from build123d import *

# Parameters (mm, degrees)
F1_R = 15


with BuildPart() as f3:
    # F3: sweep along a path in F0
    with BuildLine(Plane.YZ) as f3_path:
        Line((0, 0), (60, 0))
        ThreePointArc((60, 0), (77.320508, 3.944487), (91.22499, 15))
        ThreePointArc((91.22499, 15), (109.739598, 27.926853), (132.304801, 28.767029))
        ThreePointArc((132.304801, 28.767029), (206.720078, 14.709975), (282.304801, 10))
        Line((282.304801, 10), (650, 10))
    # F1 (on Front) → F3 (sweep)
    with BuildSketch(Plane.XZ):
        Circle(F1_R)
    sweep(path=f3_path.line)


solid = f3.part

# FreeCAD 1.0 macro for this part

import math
import FreeCAD as App
import Part
import Sketcher
from FreeCAD import Vector

doc = App.newDocument("Part")
params = doc.addObject("Spreadsheet::Sheet", "Params")
for row, (alias, value) in enumerate([
    ("sketch1_diameter", "30 mm"),
    ("sketch2_radius", "39.999998 mm"),
    ("sketch2_width", "60 mm"),
], start=1):
    params.set(f"A{row}", alias)
    params.set(f"B{row}", "=" + value)
    params.setAlias(f"B{row}", alias)

body = doc.addObject("PartDesign::Body", "Body")

# Sketch on XZ plane
sketch1 = doc.addObject("Sketcher::SketchObject", "Sketch")
body.addObject(sketch1)
sketch1.AttachmentSupport = (doc.XZ_Plane, [""])
sketch1.MapMode = "FlatFace"
sketch1.addGeometry(Part.Circle(Vector(0, 0, 0), Vector(0, 0, 1), 15), False)
sketch1.addConstraint(Sketcher.Constraint("Coincident", 0, 3, -1, 1))
sketch1.addConstraint(Sketcher.Constraint("Diameter", 0, 30.0))
sketch1.setExpression("Constraints[1]", "Params.sketch1_diameter")

# Sketch on YZ plane
sketch2 = doc.addObject("Sketcher::SketchObject", "Sketch001")
body.addObject(sketch2)
sketch2.AttachmentSupport = (doc.YZ_Plane, [""])
sketch2.MapMode = "FlatFace"
sketch2.addGeometry(Part.LineSegment(Vector(0, 0, 0), Vector(60, 0, 0)), False)
sketch2.addGeometry(Part.ArcOfCircle(Part.Circle(Vector(60.000001, 39.999998, 0), Vector(0, 0, 1), 39.999998), math.radians(-90.000001), math.radians(-38.682186)), False)
sketch2.addGeometry(Part.ArcOfCircle(Part.Circle(Vector(122.449981, -10.000002, 0), Vector(0, 0, 1), 40.000002), math.radians(75.73716), math.radians(141.317811)), False)
sketch2.addGeometry(Part.ArcOfCircle(Part.Circle(Vector(282.304794, 618.839027, 0), Vector(0, 0, 1), 608.839027), math.radians(-104.262842), math.radians(-89.999999)), False)
sketch2.addGeometry(Part.LineSegment(Vector(282.304801, 10, 0), Vector(650, 10, 0)), False)
sketch2.addConstraint(Sketcher.Constraint("Coincident", 0, 2, 1, 1))
sketch2.addConstraint(Sketcher.Constraint("Coincident", 1, 2, 2, 2))
sketch2.addConstraint(Sketcher.Constraint("Coincident", 2, 1, 3, 1))
sketch2.addConstraint(Sketcher.Constraint("Coincident", 3, 2, 4, 1))
sketch2.addConstraint(Sketcher.Constraint("Horizontal", 0))
sketch2.addConstraint(Sketcher.Constraint("Horizontal", 4))
sketch2.addConstraint(Sketcher.Constraint("Coincident", 0, 1, -1, 1))
sketch2.addConstraint(Sketcher.Constraint("Radius", 1, 39.999998))
sketch2.addConstraint(Sketcher.Constraint("DistanceX", 0, 1, 0, 2, 60.0))
sketch2.addConstraint(Sketcher.Constraint("DistanceX", -1, 1, 1, 3, 60.000001))
sketch2.addConstraint(Sketcher.Constraint("DistanceY", 2, 3, -1, 1, 10.000002))
sketch2.addConstraint(Sketcher.Constraint("DistanceY", -1, 1, 1, 2, 15.0))
sketch2.addConstraint(Sketcher.Constraint("DistanceY", -1, 1, 3, 2, 10.0))
sketch2.addConstraint(Sketcher.Constraint("DistanceX", -1, 1, 4, 2, 650.0))
sketch2.addConstraint(Sketcher.Constraint("DistanceX", 2, 1, 3, 2, 150.0))
sketch2.addConstraint(Sketcher.Constraint("DistanceX", 4, 1, 4, 2, 367.695199))
sketch2.addConstraint(Sketcher.Constraint("Radius", 2, 40.000002))
sketch2.addConstraint(Sketcher.Constraint("Radius", 3, 608.839027))
sketch2.setExpression("Constraints[7]", "Params.sketch2_radius")
sketch2.setExpression("Constraints[8]", "Params.sketch2_width")
doc.recompute()

additivepipe = doc.addObject("PartDesign::AdditivePipe", "AdditivePipe")
body.addObject(additivepipe)
additivepipe.Profile = sketch1
additivepipe.Spine = (sketch2, ["Edge1", "Edge2", "Edge3", "Edge4", "Edge5"])

doc.recompute()
